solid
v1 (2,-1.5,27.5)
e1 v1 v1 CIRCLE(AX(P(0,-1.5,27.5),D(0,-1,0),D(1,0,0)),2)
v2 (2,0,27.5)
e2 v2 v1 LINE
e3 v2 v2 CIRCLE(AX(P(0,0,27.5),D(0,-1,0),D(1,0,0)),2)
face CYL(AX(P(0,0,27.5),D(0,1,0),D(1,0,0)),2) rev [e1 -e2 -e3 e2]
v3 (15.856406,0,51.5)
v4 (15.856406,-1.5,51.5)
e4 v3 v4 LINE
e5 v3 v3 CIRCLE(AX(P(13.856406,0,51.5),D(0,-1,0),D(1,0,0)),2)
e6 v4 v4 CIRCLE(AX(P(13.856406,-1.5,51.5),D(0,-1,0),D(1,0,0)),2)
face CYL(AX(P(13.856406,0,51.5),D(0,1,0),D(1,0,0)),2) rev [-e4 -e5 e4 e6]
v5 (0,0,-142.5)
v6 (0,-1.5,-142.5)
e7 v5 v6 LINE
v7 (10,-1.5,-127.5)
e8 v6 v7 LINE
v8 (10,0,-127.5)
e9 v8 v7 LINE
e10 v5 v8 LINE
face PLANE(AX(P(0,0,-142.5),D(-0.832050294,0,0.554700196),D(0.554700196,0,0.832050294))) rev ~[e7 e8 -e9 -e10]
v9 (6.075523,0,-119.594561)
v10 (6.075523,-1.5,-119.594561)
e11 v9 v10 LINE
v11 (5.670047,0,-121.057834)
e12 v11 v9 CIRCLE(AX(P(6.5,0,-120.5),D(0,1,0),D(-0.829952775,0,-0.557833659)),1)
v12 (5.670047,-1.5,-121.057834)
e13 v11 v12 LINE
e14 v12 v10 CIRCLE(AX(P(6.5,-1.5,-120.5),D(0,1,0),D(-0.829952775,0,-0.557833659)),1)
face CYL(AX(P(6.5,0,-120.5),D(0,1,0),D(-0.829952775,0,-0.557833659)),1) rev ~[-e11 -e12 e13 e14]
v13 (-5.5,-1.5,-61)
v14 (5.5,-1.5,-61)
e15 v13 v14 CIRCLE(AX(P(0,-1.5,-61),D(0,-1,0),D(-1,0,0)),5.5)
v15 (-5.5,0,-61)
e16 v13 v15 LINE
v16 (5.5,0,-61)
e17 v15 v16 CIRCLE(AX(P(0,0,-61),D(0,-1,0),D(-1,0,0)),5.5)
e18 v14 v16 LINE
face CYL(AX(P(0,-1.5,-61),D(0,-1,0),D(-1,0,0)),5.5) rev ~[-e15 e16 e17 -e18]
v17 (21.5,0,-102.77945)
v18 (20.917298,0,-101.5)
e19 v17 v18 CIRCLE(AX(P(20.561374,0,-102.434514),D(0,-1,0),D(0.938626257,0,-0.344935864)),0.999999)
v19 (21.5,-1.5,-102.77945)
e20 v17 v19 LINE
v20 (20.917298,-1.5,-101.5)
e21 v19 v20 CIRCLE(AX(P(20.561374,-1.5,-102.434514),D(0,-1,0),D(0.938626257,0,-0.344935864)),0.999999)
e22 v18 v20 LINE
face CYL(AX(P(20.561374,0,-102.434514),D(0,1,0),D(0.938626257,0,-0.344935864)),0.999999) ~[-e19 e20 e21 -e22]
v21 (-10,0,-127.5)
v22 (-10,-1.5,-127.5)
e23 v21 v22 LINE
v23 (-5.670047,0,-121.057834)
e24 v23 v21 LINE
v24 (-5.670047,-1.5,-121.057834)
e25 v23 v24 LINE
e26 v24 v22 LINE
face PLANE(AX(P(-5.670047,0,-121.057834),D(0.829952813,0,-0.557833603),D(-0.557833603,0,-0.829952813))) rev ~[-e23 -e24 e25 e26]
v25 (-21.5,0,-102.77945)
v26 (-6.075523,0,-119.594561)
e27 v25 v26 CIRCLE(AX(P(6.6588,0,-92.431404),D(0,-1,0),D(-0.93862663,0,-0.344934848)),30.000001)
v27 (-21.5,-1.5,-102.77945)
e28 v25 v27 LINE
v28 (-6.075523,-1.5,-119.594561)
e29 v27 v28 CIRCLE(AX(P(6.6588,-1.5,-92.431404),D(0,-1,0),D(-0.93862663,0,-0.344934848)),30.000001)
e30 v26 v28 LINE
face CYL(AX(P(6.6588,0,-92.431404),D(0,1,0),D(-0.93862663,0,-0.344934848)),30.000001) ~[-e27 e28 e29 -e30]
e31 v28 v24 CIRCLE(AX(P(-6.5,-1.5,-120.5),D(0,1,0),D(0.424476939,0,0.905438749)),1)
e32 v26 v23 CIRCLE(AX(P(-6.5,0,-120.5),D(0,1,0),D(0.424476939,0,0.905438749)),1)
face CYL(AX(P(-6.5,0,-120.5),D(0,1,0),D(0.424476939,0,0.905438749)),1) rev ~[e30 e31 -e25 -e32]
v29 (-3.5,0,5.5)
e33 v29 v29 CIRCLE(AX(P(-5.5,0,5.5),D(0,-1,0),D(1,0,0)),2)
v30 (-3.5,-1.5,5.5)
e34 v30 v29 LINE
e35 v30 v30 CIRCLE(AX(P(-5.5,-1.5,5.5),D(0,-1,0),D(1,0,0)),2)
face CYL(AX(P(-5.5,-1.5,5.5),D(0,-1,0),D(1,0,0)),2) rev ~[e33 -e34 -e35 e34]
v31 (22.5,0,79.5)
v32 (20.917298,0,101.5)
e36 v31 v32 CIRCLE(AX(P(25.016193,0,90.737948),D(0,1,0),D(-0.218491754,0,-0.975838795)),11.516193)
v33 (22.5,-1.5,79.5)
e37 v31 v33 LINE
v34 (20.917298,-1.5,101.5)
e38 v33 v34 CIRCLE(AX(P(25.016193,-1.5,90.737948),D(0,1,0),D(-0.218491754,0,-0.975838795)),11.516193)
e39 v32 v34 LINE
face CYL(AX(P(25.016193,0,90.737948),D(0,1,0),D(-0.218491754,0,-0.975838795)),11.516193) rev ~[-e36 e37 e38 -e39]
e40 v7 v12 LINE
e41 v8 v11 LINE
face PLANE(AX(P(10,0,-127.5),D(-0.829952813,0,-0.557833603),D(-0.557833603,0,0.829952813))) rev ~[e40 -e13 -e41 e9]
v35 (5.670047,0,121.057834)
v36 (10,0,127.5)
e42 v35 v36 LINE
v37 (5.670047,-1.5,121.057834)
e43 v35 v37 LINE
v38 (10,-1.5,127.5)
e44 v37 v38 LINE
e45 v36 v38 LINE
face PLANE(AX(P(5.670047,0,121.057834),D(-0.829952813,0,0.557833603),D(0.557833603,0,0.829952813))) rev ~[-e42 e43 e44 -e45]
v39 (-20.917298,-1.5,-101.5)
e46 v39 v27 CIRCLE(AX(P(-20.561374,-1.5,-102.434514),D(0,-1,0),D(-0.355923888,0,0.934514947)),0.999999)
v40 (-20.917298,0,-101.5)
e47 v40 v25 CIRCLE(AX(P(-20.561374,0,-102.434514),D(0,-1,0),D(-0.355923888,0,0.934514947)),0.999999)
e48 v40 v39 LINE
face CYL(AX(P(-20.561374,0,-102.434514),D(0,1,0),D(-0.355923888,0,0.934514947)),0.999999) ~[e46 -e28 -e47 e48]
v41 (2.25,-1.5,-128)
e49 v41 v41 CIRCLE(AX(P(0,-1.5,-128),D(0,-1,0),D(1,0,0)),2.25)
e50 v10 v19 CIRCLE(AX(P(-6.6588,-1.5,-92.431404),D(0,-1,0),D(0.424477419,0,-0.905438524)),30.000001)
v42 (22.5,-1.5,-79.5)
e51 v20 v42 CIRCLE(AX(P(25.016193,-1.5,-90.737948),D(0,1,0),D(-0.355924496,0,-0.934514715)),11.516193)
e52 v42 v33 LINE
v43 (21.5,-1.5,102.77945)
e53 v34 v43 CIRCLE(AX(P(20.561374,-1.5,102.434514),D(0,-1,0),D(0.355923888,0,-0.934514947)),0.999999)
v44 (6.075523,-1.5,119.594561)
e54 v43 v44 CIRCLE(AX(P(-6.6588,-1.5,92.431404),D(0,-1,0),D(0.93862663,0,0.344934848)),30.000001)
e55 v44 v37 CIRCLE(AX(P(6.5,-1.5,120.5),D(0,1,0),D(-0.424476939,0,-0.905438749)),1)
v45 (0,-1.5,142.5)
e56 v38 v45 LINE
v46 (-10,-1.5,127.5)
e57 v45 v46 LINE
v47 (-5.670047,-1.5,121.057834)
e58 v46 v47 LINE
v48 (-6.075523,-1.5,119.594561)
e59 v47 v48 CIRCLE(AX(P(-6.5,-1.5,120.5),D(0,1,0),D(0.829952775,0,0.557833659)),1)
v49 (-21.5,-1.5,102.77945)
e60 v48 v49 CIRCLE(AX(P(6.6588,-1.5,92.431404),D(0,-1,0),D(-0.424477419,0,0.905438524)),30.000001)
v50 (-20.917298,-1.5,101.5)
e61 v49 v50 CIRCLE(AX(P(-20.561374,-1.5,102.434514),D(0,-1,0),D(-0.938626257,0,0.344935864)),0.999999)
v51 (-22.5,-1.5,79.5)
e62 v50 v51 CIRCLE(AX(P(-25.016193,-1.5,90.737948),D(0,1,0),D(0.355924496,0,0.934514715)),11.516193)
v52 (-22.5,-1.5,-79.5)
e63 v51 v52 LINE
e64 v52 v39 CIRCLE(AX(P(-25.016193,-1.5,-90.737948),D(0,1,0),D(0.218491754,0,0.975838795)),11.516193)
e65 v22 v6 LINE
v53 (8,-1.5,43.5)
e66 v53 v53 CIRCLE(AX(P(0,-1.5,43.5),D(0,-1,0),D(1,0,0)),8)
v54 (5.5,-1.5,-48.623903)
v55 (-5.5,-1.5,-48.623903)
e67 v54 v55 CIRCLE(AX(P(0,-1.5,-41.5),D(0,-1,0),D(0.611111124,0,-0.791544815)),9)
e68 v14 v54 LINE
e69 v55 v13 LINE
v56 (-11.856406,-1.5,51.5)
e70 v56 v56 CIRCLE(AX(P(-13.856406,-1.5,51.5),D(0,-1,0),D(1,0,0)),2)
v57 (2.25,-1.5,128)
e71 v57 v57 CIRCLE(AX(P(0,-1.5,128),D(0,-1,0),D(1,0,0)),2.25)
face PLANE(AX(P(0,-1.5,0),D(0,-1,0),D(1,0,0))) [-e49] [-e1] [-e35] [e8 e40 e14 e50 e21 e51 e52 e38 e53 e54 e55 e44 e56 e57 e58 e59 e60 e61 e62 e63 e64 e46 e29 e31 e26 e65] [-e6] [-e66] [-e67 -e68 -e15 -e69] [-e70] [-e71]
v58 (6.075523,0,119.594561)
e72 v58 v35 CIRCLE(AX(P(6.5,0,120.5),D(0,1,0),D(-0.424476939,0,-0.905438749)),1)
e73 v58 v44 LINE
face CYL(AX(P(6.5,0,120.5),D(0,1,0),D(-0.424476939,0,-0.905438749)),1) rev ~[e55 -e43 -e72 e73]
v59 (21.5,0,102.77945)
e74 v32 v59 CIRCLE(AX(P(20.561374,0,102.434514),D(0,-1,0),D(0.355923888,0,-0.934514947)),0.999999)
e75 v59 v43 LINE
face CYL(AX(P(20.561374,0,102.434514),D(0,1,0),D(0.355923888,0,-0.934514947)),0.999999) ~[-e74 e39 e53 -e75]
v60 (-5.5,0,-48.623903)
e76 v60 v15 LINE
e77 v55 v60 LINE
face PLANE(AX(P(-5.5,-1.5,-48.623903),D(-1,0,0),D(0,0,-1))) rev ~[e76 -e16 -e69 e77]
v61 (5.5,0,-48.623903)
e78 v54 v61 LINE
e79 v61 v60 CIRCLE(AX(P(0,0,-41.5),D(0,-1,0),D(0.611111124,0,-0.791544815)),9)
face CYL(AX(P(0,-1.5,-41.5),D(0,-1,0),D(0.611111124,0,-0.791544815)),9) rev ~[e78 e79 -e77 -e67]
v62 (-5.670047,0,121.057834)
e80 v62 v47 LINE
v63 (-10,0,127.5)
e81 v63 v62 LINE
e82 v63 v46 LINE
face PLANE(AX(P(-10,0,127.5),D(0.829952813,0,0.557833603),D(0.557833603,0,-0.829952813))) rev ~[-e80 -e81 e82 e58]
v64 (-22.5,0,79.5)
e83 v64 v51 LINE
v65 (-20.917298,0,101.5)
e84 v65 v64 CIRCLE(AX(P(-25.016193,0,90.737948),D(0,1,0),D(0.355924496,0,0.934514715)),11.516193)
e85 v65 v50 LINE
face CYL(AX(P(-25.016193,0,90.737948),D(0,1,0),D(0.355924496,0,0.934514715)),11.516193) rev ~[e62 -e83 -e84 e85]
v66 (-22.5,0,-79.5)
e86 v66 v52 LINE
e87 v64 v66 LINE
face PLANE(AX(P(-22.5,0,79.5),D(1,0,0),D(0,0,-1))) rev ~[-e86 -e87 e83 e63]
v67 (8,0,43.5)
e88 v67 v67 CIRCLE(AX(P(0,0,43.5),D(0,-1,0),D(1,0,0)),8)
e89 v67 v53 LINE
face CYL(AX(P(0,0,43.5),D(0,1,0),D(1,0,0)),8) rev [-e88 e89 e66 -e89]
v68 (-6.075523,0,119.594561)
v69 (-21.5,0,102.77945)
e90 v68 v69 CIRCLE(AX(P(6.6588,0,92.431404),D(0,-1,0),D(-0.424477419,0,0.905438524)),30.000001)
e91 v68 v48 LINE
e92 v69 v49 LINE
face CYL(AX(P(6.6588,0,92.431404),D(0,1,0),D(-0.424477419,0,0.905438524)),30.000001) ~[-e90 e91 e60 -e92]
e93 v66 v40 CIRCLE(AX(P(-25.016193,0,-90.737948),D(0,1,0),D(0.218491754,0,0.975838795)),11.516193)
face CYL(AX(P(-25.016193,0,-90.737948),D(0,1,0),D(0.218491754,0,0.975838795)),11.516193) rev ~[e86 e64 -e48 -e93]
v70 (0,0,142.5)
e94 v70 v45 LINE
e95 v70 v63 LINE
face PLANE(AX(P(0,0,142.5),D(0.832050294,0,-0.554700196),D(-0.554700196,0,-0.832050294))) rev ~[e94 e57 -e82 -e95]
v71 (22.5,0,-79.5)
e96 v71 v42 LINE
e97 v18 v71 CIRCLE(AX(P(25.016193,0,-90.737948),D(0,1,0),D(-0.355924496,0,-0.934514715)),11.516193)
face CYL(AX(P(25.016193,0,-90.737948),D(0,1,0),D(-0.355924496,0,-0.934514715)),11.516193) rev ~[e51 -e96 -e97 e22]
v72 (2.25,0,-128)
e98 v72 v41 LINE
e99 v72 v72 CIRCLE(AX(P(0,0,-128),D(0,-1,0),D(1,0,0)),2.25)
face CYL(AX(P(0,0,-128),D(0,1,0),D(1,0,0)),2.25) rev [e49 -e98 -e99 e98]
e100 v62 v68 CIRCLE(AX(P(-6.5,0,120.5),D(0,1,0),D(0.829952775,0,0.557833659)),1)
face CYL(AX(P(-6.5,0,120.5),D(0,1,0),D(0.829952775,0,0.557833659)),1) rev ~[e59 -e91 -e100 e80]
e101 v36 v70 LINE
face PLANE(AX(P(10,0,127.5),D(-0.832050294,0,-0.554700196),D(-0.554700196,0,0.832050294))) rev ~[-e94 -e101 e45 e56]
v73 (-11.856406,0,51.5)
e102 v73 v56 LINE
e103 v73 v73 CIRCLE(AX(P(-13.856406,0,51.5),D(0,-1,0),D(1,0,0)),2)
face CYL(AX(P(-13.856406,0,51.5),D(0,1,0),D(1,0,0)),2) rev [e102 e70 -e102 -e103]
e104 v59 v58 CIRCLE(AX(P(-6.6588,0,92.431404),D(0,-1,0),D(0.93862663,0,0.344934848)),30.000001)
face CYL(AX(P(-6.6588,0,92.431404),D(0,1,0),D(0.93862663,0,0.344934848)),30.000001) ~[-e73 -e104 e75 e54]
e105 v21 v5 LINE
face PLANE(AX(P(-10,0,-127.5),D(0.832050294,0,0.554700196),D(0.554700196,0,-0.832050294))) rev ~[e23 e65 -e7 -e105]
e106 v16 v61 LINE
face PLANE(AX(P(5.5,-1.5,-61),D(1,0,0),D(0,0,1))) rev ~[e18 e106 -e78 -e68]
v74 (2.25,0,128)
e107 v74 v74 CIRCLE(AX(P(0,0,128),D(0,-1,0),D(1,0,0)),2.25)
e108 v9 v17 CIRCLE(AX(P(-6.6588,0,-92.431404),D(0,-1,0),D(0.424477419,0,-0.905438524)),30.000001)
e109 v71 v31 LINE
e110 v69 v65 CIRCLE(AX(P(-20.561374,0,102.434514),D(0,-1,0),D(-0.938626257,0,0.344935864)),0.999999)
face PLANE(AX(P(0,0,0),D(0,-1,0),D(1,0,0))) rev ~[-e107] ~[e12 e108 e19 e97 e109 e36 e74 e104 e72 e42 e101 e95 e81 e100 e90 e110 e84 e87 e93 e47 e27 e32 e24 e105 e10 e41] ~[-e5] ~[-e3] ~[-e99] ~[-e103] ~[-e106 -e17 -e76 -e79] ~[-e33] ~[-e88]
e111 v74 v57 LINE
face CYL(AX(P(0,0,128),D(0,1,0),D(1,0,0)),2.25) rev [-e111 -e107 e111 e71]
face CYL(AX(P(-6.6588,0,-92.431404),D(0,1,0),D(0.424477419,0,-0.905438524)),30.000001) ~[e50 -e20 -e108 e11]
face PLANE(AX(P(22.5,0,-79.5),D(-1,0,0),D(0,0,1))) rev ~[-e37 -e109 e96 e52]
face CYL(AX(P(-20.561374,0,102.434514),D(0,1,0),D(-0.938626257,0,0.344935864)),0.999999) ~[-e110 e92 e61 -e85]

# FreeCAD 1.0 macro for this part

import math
import FreeCAD as App
import Part
import Sketcher
from FreeCAD import Vector
Q = App.Units.Quantity

doc = App.newDocument("Part")
body = doc.addObject("PartDesign::Body", "Body")

# Sketch on XZ plane
sketch1 = body.newObject("Sketcher::SketchObject", "Sketch")
sketch1.AttachmentSupport = (doc.getObject("XZ_Plane"), [""])
sketch1.MapMode = "FlatFace"
sketch1.addGeometry([
    Part.ArcOfCircle(Part.Circle(Vector(25, -90.7, 0), Vector(0, 0, 1), 11.5), math.radians(103), math.radians(249)),  # 0
    Part.LineSegment(Vector(22.5, -79.5, 0), Vector(22.5, 79.5, 0)),  # 1
    Part.ArcOfCircle(Part.Circle(Vector(25, 90.7, 0), Vector(0, 0, 1), 11.5), math.radians(111), math.radians(257)),  # 2
    Part.ArcOfCircle(Part.Circle(Vector(20.6, 102.4, 0), Vector(0, 0, 1), 1), math.radians(-69), math.radians(20)),  # 3
    Part.ArcOfCircle(Part.Circle(Vector(-6.7, 92.4, 0), Vector(0, 0, 1), 30), math.radians(20), math.radians(65)),  # 4
    Part.ArcOfCircle(Part.Circle(Vector(6.5, 120.5, 0), Vector(0, 0, 1), 1), math.radians(146), math.radians(245)),  # 5
    Part.LineSegment(Vector(5.7, 121.1, 0), Vector(10, 127.5, 0)),  # 6
    Part.LineSegment(Vector(10, 127.5, 0), Vector(0, 142.5, 0)),  # 7
    Part.LineSegment(Vector(0, 142.5, 0), Vector(-10, 127.5, 0)),  # 8
    Part.LineSegment(Vector(-10, 127.5, 0), Vector(-5.7, 121.1, 0)),  # 9
    Part.ArcOfCircle(Part.Circle(Vector(-6.5, 120.5, 0), Vector(0, 0, 1), 1), math.radians(-65), math.radians(34)),  # 10
    Part.ArcOfCircle(Part.Circle(Vector(6.7, 92.4, 0), Vector(0, 0, 1), 30), math.radians(115), math.radians(160)),  # 11
    Part.ArcOfCircle(Part.Circle(Vector(-20.6, 102.4, 0), Vector(0, 0, 1), 1), math.radians(160), math.radians(249)),  # 12
    Part.ArcOfCircle(Part.Circle(Vector(-25, 90.7, 0), Vector(0, 0, 1), 11.5), math.radians(-77), math.radians(69)),  # 13
    Part.LineSegment(Vector(-22.5, 79.5, 0), Vector(-22.5, -79.5, 0)),  # 14
    Part.ArcOfCircle(Part.Circle(Vector(-25, -90.7, 0), Vector(0, 0, 1), 11.5), math.radians(-69), math.radians(77)),  # 15
    Part.ArcOfCircle(Part.Circle(Vector(-20.6, -102.4, 0), Vector(0, 0, 1), 1), math.radians(111), math.radians(200)),  # 16
    Part.ArcOfCircle(Part.Circle(Vector(6.7, -92.4, 0), Vector(0, 0, 1), 30), math.radians(-160), math.radians(-115)),  # 17
    Part.ArcOfCircle(Part.Circle(Vector(-6.5, -120.5, 0), Vector(0, 0, 1), 1), math.radians(-34), math.radians(65)),  # 18
    Part.LineSegment(Vector(-5.7, -121.1, 0), Vector(-10, -127.5, 0)),  # 19
    Part.LineSegment(Vector(-10, -127.5, 0), Vector(0, -142.5, 0)),  # 20
    Part.LineSegment(Vector(0, -142.5, 0), Vector(10, -127.5, 0)),  # 21
    Part.LineSegment(Vector(10, -127.5, 0), Vector(5.7, -121.1, 0)),  # 22
    Part.ArcOfCircle(Part.Circle(Vector(6.5, -120.5, 0), Vector(0, 0, 1), 1), math.radians(115), math.radians(214)),  # 23
    Part.ArcOfCircle(Part.Circle(Vector(-6.7, -92.4, 0), Vector(0, 0, 1), 30), math.radians(-65), math.radians(-20)),  # 24
    Part.ArcOfCircle(Part.Circle(Vector(20.6, -102.4, 0), Vector(0, 0, 1), 1), math.radians(-20), math.radians(69)),  # 25
    Part.Circle(Vector(0, -128, 0), Vector(0, 0, 1), 2.2),  # 26
    Part.Circle(Vector(-13.9, 51.5, 0), Vector(0, 0, 1), 2),  # 27
    Part.Circle(Vector(0, 27.5, 0), Vector(0, 0, 1), 2),  # 28
    Part.Circle(Vector(0, 43.5, 0), Vector(0, 0, 1), 8),  # 29
    Part.Circle(Vector(13.9, 51.5, 0), Vector(0, 0, 1), 2),  # 30
    Part.Circle(Vector(0, 128, 0), Vector(0, 0, 1), 2.2),  # 31
], False)
sketch1.addConstraint([
    Sketcher.Constraint("Coincident", 0, 1, 1, 1),
    Sketcher.Constraint("Coincident", 1, 2, 2, 2),
    Sketcher.Constraint("Tangent", 2, 1, 3, 1),
    Sketcher.Constraint("Tangent", 3, 2, 4, 1),
    Sketcher.Constraint("Tangent", 4, 2, 5, 2),
    Sketcher.Constraint("Tangent", 5, 1, 6, 1),
    Sketcher.Constraint("Coincident", 6, 2, 7, 1),
    Sketcher.Constraint("Coincident", 7, 2, 8, 1),
    Sketcher.Constraint("Coincident", 8, 2, 9, 1),
    Sketcher.Constraint("Tangent", 9, 2, 10, 2),
    Sketcher.Constraint("Tangent", 10, 1, 11, 1),
    Sketcher.Constraint("Tangent", 11, 2, 12, 1),
    Sketcher.Constraint("Tangent", 12, 2, 13, 2),
    Sketcher.Constraint("Coincident", 13, 1, 14, 1),
    Sketcher.Constraint("Coincident", 14, 2, 15, 2),
    Sketcher.Constraint("Tangent", 15, 1, 16, 1),
    Sketcher.Constraint("Tangent", 16, 2, 17, 1),
    Sketcher.Constraint("Tangent", 17, 2, 18, 2),
    Sketcher.Constraint("Tangent", 18, 1, 19, 1),
    Sketcher.Constraint("Coincident", 19, 2, 20, 1),
    Sketcher.Constraint("Coincident", 20, 2, 21, 1),
    Sketcher.Constraint("Coincident", 21, 2, 22, 1),
    Sketcher.Constraint("Tangent", 22, 2, 23, 2),
    Sketcher.Constraint("Tangent", 23, 1, 24, 1),
    Sketcher.Constraint("Tangent", 24, 2, 25, 1),
    Sketcher.Constraint("Tangent", 25, 2, 0, 2),
    Sketcher.Constraint("Vertical", 1),
    Sketcher.Constraint("Vertical", 14),
    Sketcher.Constraint("Equal", 0, 2),
    Sketcher.Constraint("Equal", 3, 5),
    Sketcher.Constraint("Equal", 5, 10),
    Sketcher.Constraint("Equal", 4, 11),
    Sketcher.Constraint("Equal", 10, 12),
    Sketcher.Constraint("Equal", 2, 13),
    Sketcher.Constraint("Equal", 13, 15),
    Sketcher.Constraint("Equal", 12, 16),
    Sketcher.Constraint("Equal", 11, 17),
    Sketcher.Constraint("Equal", 16, 18),
    Sketcher.Constraint("Equal", 18, 23),
    Sketcher.Constraint("Equal", 17, 24),
    Sketcher.Constraint("Equal", 23, 25),
    Sketcher.Constraint("Equal", 27, 28),
    Sketcher.Constraint("Equal", 28, 30),
    Sketcher.Constraint("Equal", 26, 31),
    Sketcher.Constraint("Symmetric", 0, 3, 13, 3, -1, 1),
    Sketcher.Constraint("Symmetric", 2, 3, 15, 3, -1, 1),
    Sketcher.Constraint("Symmetric", 4, 3, 17, 3, -1, 1),
    Sketcher.Constraint("Symmetric", 10, 3, 23, 3, -1, 1),
    Sketcher.Constraint("Symmetric", 26, 3, 31, 3, -1, 1),
    Sketcher.Constraint("Symmetric", 5, 1, 18, 1, -1, 1),
    Sketcher.Constraint("Symmetric", 7, 2, 20, 2, -1, 1),
    Sketcher.Constraint("Symmetric", 8, 2, 21, 2, -1, 1),
    Sketcher.Constraint("Symmetric", 5, 3, 10, 3, -2),
    Sketcher.Constraint("Symmetric", 3, 3, 12, 3, -2),
    Sketcher.Constraint("Symmetric", 27, 3, 30, 3, -2),
    Sketcher.Constraint("Symmetric", 6, 2, 8, 2, -2),
    Sketcher.Constraint("Symmetric", 1, 2, 13, 1, -2),
    Sketcher.Constraint("PointOnObject", 26, 3, -2),
    Sketcher.Constraint("PointOnObject", 28, 3, -2),
    Sketcher.Constraint("PointOnObject", 29, 3, -2),
    Sketcher.Constraint("PointOnObject", 7, 2, -2),
    Sketcher.Constraint("Parallel", 7, 20),
    Sketcher.Constraint("Horizontal", 17, 3, 24, 3),
    Sketcher.Constraint("Diameter", 27, Q("4 mm")),
    Sketcher.Constraint("Diameter", 29, Q("16 mm")),
    Sketcher.Constraint("Radius", 3, Q("0.999999 mm")),
    Sketcher.Constraint("Radius", 4, Q("30.000001 mm")),
    Sketcher.Constraint("Diameter", 26, Q("4.5 mm")),
    Sketcher.Constraint("DistanceY", 1, 1, 1, 2, Q("159 mm")),
    Sketcher.Constraint("DistanceY", 26, 3, -1, 1, Q("128 mm")),
    Sketcher.Constraint("DistanceX", -1, 1, 6, 2, Q("10 mm")),
    Sketcher.Constraint("DistanceX", 10, 3, 5, 3, Q("13 mm")),
    Sketcher.Constraint("DistanceY", 28, 3, 27, 3, Q("24 mm")),
    Sketcher.Constraint("DistanceY", 29, 3, 27, 3, Q("8 mm")),
    Sketcher.Constraint("DistanceX", 23, 3, 0, 1, Q("16 mm")),
    Sketcher.Constraint("DistanceY", 23, 3, 0, 1, Q("41 mm")),
    Sketcher.Constraint("DistanceY", 30, 3, 1, 2, Q("28 mm")),
    Sketcher.Constraint("DistanceY", 1, 2, 2, 1, Q("22 mm")),
    Sketcher.Constraint("DistanceX", 5, 3, 3, 2, Q("15 mm")),
    Sketcher.Constraint("DistanceY", 5, 3, 6, 2, Q("7 mm")),
    Sketcher.Constraint("DistanceY", 6, 2, 7, 2, Q("15 mm")),
    Sketcher.Constraint("Radius", 0, Q("11.516193 mm")),
    Sketcher.Constraint("DistanceX", 27, 3, 2, 3, Q("38.872599 mm")),
])
pad1 = body.newObject("PartDesign::Pad", "Pad")
pad1.Profile = sketch1
pad1.Length = 1.5

# Sketch on XZ plane
sketch2 = body.newObject("Sketcher::SketchObject", "Sketch001")
sketch2.AttachmentSupport = (doc.getObject("XZ_Plane"), [""])
sketch2.MapMode = "FlatFace"
sketch2.AttachmentOffset = App.Placement(Vector(0, 0, 1.5), App.Rotation())
sketch2.addGeometry([
    Part.LineSegment(Vector(5.5, -61, 0), Vector(5.5, -48.6, 0)),  # 0
    Part.ArcOfCircle(Part.Circle(Vector(0, -41.5, 0), Vector(0, 0, 1), 9), math.radians(-52), math.radians(232)),  # 1
    Part.LineSegment(Vector(-5.5, -48.6, 0), Vector(-5.5, -61, 0)),  # 2
    Part.ArcOfCircle(Part.Circle(Vector(0, -61, 0), Vector(0, 0, 1), 5.5), math.radians(180), math.radians(360)),  # 3
    Part.Circle(Vector(-5.5, 5.5, 0), Vector(0, 0, 1), 2),  # 4
], False)
sketch2.addConstraint([
    Sketcher.Constraint("Coincident", 0, 2, 1, 1),
    Sketcher.Constraint("Coincident", 1, 2, 2, 1),
    Sketcher.Constraint("Tangent", 2, 2, 3, 1),
    Sketcher.Constraint("Tangent", 3, 2, 0, 1),
    Sketcher.Constraint("Vertical", 0),
    Sketcher.Constraint("Vertical", 2),
    Sketcher.Constraint("Symmetric", 0, 2, 1, 2, -2),
    Sketcher.Constraint("Vertical", 4, 3, 1, 2),
    Sketcher.Constraint("Diameter", 4, Q("4 mm")),
    Sketcher.Constraint("Radius", 1, Q("9 mm")),
    Sketcher.Constraint("Radius", 3, Q("5.5 mm")),
    Sketcher.Constraint("DistanceY", 3, 3, -1, 1, Q("61 mm")),
    Sketcher.Constraint("DistanceY", 1, 3, 4, 3, Q("47 mm")),
    Sketcher.Constraint("DistanceY", 1, 3, -1, 1, Q("41.5 mm")),
])
pocket1 = body.newObject("PartDesign::Pocket", "Pocket")
pocket1.Profile = sketch2
pocket1.Type = "ThroughAll"

doc.recompute()
